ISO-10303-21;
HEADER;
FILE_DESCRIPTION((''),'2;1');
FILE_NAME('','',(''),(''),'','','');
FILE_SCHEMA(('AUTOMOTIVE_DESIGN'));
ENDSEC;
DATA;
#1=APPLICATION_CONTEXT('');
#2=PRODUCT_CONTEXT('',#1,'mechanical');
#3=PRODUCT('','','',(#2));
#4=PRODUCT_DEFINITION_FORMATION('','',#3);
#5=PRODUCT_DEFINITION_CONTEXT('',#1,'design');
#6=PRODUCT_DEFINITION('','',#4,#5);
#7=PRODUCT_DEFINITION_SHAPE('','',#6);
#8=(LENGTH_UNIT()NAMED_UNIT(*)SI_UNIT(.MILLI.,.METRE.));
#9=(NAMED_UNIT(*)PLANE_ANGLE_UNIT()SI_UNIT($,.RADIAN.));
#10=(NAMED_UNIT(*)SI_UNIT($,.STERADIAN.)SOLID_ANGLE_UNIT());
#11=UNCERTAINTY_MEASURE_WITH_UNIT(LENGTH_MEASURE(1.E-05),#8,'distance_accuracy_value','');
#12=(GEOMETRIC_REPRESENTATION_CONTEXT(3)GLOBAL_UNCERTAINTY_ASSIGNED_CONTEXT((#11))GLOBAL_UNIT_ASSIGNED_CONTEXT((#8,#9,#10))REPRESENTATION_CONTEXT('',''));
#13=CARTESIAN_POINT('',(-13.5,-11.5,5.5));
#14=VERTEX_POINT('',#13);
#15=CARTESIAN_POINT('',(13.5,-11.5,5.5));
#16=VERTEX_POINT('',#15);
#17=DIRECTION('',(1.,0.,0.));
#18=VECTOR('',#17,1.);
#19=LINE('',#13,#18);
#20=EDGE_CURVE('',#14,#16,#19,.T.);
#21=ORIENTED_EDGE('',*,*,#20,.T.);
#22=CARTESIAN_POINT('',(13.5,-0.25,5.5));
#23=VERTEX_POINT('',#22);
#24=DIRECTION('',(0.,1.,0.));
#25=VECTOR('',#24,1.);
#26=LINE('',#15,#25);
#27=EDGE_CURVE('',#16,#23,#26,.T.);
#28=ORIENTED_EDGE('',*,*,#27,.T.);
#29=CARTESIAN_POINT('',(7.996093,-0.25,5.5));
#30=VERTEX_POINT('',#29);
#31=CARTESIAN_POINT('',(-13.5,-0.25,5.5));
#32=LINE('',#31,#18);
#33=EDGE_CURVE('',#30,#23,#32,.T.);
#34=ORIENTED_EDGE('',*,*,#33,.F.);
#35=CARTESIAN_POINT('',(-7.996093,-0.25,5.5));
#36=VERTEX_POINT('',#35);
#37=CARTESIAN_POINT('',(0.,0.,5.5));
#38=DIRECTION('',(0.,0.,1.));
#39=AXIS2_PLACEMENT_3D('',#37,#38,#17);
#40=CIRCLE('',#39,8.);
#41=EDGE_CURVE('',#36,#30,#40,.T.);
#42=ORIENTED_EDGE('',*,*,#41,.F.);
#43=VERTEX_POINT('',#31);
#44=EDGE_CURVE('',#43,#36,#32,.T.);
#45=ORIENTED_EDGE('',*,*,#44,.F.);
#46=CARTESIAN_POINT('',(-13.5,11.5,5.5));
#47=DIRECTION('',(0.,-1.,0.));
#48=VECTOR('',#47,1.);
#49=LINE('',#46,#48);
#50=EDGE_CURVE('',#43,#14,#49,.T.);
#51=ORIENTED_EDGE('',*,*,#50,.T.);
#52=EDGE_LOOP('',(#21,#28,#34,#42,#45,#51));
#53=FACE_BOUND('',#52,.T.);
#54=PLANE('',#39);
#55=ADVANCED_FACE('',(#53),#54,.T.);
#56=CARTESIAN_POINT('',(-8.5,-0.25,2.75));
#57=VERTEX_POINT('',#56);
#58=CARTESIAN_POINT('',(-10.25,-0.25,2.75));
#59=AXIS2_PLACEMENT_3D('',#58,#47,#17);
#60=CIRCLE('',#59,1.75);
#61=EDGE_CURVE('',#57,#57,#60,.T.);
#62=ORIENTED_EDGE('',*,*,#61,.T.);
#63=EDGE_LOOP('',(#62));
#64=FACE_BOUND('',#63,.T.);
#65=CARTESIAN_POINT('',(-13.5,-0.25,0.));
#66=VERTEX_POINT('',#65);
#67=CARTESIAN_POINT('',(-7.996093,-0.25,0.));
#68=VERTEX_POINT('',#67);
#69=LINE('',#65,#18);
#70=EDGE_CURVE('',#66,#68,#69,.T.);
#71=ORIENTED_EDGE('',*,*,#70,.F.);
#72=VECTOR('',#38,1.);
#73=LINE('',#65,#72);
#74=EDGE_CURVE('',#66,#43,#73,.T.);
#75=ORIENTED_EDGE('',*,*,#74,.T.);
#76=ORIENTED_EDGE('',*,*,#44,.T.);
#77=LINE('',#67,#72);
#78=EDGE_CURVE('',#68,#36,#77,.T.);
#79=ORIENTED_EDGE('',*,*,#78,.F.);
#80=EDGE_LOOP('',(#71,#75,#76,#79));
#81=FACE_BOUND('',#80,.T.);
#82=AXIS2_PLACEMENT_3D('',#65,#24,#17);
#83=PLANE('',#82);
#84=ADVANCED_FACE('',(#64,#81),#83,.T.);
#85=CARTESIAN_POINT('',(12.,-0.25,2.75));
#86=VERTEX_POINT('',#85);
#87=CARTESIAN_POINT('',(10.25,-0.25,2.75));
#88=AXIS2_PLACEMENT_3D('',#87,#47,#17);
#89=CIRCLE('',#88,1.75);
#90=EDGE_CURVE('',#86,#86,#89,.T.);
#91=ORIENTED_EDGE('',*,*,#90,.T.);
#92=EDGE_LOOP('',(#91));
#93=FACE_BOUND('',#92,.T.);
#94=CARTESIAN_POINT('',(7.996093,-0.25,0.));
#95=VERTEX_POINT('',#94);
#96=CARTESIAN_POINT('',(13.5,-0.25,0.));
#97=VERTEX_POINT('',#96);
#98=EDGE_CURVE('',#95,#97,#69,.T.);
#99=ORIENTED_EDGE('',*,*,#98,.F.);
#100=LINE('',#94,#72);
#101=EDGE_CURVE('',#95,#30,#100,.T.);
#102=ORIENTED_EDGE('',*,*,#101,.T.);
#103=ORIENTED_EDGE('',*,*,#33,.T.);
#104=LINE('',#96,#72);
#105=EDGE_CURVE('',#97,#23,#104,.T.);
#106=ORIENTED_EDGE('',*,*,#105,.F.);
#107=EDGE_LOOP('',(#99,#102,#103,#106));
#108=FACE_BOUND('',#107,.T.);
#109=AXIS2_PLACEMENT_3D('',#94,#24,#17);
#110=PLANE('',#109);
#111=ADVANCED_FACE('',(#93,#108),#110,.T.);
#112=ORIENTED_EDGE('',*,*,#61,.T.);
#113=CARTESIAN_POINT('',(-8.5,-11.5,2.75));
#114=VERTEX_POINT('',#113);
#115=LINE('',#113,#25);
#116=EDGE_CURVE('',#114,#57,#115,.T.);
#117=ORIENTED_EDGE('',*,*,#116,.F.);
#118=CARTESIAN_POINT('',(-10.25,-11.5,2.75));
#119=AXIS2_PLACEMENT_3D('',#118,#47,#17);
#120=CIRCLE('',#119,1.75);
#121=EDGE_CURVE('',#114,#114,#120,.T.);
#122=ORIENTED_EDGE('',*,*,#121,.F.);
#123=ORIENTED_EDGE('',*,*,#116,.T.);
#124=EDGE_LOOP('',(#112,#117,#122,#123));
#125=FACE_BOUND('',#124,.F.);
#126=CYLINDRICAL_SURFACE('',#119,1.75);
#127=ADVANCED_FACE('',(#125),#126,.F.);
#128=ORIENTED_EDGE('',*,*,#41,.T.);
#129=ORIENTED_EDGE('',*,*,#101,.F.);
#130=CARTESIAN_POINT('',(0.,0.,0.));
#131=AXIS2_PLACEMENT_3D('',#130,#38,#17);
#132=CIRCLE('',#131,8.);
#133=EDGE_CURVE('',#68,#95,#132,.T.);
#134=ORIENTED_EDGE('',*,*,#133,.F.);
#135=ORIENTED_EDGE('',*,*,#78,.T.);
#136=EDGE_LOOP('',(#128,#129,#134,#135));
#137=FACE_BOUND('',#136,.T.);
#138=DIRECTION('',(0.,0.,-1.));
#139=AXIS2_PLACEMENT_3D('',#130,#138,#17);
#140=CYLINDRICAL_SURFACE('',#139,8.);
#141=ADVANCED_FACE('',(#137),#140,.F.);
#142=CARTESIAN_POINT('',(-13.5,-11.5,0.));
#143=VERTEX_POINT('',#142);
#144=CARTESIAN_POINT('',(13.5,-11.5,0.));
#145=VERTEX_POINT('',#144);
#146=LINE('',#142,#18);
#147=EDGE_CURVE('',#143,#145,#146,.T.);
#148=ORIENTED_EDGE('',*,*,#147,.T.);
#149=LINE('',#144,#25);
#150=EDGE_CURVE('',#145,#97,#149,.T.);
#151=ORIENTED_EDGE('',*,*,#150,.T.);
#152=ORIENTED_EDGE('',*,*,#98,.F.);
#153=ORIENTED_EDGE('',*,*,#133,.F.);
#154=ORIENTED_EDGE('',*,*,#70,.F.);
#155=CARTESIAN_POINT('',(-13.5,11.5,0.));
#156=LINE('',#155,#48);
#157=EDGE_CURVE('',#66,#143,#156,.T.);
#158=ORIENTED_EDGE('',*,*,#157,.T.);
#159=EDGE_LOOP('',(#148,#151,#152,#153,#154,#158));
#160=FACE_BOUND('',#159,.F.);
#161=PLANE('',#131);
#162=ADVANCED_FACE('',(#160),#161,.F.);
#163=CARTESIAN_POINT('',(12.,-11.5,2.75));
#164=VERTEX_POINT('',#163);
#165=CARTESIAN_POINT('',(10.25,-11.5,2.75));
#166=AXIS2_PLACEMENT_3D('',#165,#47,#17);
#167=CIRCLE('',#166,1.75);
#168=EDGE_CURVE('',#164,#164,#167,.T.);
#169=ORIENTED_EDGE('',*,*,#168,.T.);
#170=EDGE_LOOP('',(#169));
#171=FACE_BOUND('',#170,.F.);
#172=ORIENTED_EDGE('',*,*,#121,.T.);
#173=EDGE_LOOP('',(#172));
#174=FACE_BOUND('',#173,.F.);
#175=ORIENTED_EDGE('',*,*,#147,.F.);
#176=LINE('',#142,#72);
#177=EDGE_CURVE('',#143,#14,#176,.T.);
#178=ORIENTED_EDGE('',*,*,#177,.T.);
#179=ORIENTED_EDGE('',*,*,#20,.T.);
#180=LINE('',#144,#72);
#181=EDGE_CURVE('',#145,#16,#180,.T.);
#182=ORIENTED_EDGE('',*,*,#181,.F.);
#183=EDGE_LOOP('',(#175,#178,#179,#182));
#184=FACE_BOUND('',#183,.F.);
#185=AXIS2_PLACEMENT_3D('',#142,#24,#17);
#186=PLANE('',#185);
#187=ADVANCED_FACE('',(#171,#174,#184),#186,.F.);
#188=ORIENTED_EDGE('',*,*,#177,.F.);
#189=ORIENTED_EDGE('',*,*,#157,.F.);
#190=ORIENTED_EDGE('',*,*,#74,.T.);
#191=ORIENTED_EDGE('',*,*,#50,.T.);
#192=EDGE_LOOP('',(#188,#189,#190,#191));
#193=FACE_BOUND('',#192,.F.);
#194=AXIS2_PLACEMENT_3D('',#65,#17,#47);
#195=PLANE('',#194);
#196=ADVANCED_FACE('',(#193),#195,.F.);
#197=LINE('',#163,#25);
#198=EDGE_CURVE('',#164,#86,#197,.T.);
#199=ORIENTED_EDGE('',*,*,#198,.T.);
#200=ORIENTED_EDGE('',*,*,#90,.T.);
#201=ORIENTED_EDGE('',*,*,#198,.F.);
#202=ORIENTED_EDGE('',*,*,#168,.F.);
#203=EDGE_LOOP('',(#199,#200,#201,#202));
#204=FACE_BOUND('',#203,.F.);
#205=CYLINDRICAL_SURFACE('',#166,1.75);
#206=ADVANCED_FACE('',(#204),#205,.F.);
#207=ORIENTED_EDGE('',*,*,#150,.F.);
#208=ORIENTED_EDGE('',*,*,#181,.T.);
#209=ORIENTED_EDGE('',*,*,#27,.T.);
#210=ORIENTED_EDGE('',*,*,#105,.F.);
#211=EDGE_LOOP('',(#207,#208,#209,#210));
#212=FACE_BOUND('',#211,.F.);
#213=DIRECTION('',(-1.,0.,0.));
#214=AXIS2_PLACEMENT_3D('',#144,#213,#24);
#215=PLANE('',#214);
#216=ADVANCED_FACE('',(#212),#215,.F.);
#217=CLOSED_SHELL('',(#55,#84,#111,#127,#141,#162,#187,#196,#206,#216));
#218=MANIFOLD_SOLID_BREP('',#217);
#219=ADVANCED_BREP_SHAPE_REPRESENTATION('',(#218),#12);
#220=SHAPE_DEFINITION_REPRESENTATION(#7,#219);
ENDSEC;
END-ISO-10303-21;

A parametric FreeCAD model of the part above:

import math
import FreeCAD as App
import Part
import Sketcher

V = App.Vector

doc = App.newDocument("Part")
body = doc.addObject("PartDesign::Body", "Body")

sketch1 = body.newObject("Sketcher::SketchObject", "Sketch")
sketch1.AttachmentSupport = (doc.getObject("XY_Plane"), [""])
sketch1.MapMode = "FlatFace"
sketch1.addGeometry(Part.ArcOfCircle(Part.Circle(V(0, 0, 0), V(0, 0, 1), 8), math.radians(-178.209215), math.radians(-1.790785)), False)
sketch1.addGeometry(Part.LineSegment(V(-7.996093, -0.25, 0), V(-13.5, -0.25, 0)), False)
sketch1.addGeometry(Part.LineSegment(V(-13.5, -0.25, 0), V(-13.5, -11.5, 0)), False)
sketch1.addGeometry(Part.LineSegment(V(-13.5, -11.5, 0), V(13.5, -11.5, 0)), False)
sketch1.addGeometry(Part.LineSegment(V(13.5, -11.5, 0), V(13.5, -0.25, 0)), False)
sketch1.addGeometry(Part.LineSegment(V(13.5, -0.25, 0), V(7.996093, -0.25, 0)), False)
sketch1.addConstraint(Sketcher.Constraint("Coincident", 0, 1, 1, 1))
sketch1.addConstraint(Sketcher.Constraint("Coincident", 1, 2, 2, 1))
sketch1.addConstraint(Sketcher.Constraint("Coincident", 2, 2, 3, 1))
sketch1.addConstraint(Sketcher.Constraint("Coincident", 3, 2, 4, 1))
sketch1.addConstraint(Sketcher.Constraint("Coincident", 4, 2, 5, 1))
sketch1.addConstraint(Sketcher.Constraint("Coincident", 5, 2, 0, 2))
sketch1.addConstraint(Sketcher.Constraint("Horizontal", 1))
sketch1.addConstraint(Sketcher.Constraint("Vertical", 2))
sketch1.addConstraint(Sketcher.Constraint("Horizontal", 3))
sketch1.addConstraint(Sketcher.Constraint("Vertical", 4))
sketch1.addConstraint(Sketcher.Constraint("Horizontal", 5))
sketch1.addConstraint(Sketcher.Constraint("Coincident", 0, 3, -1, 1))
sketch1.addConstraint(Sketcher.Constraint("Symmetric", 1, 2, 4, 2, -2))
sketch1.addConstraint(Sketcher.Constraint("Radius", 0, 8.0))
sketch1.addConstraint(Sketcher.Constraint("DistanceX", 3, 1, 3, 2, 27.0))
sketch1.addConstraint(Sketcher.Constraint("DistanceY", 2, 2, 2, 1, 11.25))
sketch1.addConstraint(Sketcher.Constraint("DistanceY", 2, 2, -1, 1, 11.5))
pad1 = body.newObject("PartDesign::Pad", "Pad")
pad1.Profile = sketch1
pad1.Length = 5.5

sketch2 = body.newObject("Sketcher::SketchObject", "Sketch001")
sketch2.AttachmentSupport = (doc.getObject("XZ_Plane"), [""])
sketch2.MapMode = "FlatFace"
sketch2.AttachmentOffset = App.Placement(V(0, 0, 11.5), App.Rotation())
sketch2.addGeometry(Part.Circle(V(10.25, 2.75, 0), V(0, 0, 1), 1.75), False)
sketch2.addGeometry(Part.Circle(V(-10.25, 2.75, 0), V(0, 0, 1), 1.75), False)
sketch2.addConstraint(Sketcher.Constraint("Equal", 0, 1))
sketch2.addConstraint(Sketcher.Constraint("Symmetric", 0, 3, 1, 3, -2))
sketch2.addConstraint(Sketcher.Constraint("Diameter", 0, 3.5))
sketch2.addConstraint(Sketcher.Constraint("DistanceX", -1, 1, 0, 3, 10.25))
sketch2.addConstraint(Sketcher.Constraint("DistanceY", -1, 1, 0, 3, 2.75))
pocket1 = body.newObject("PartDesign::Pocket", "Pocket")
pocket1.Profile = sketch2
pocket1.Type = "ThroughAll"

doc.recompute()
